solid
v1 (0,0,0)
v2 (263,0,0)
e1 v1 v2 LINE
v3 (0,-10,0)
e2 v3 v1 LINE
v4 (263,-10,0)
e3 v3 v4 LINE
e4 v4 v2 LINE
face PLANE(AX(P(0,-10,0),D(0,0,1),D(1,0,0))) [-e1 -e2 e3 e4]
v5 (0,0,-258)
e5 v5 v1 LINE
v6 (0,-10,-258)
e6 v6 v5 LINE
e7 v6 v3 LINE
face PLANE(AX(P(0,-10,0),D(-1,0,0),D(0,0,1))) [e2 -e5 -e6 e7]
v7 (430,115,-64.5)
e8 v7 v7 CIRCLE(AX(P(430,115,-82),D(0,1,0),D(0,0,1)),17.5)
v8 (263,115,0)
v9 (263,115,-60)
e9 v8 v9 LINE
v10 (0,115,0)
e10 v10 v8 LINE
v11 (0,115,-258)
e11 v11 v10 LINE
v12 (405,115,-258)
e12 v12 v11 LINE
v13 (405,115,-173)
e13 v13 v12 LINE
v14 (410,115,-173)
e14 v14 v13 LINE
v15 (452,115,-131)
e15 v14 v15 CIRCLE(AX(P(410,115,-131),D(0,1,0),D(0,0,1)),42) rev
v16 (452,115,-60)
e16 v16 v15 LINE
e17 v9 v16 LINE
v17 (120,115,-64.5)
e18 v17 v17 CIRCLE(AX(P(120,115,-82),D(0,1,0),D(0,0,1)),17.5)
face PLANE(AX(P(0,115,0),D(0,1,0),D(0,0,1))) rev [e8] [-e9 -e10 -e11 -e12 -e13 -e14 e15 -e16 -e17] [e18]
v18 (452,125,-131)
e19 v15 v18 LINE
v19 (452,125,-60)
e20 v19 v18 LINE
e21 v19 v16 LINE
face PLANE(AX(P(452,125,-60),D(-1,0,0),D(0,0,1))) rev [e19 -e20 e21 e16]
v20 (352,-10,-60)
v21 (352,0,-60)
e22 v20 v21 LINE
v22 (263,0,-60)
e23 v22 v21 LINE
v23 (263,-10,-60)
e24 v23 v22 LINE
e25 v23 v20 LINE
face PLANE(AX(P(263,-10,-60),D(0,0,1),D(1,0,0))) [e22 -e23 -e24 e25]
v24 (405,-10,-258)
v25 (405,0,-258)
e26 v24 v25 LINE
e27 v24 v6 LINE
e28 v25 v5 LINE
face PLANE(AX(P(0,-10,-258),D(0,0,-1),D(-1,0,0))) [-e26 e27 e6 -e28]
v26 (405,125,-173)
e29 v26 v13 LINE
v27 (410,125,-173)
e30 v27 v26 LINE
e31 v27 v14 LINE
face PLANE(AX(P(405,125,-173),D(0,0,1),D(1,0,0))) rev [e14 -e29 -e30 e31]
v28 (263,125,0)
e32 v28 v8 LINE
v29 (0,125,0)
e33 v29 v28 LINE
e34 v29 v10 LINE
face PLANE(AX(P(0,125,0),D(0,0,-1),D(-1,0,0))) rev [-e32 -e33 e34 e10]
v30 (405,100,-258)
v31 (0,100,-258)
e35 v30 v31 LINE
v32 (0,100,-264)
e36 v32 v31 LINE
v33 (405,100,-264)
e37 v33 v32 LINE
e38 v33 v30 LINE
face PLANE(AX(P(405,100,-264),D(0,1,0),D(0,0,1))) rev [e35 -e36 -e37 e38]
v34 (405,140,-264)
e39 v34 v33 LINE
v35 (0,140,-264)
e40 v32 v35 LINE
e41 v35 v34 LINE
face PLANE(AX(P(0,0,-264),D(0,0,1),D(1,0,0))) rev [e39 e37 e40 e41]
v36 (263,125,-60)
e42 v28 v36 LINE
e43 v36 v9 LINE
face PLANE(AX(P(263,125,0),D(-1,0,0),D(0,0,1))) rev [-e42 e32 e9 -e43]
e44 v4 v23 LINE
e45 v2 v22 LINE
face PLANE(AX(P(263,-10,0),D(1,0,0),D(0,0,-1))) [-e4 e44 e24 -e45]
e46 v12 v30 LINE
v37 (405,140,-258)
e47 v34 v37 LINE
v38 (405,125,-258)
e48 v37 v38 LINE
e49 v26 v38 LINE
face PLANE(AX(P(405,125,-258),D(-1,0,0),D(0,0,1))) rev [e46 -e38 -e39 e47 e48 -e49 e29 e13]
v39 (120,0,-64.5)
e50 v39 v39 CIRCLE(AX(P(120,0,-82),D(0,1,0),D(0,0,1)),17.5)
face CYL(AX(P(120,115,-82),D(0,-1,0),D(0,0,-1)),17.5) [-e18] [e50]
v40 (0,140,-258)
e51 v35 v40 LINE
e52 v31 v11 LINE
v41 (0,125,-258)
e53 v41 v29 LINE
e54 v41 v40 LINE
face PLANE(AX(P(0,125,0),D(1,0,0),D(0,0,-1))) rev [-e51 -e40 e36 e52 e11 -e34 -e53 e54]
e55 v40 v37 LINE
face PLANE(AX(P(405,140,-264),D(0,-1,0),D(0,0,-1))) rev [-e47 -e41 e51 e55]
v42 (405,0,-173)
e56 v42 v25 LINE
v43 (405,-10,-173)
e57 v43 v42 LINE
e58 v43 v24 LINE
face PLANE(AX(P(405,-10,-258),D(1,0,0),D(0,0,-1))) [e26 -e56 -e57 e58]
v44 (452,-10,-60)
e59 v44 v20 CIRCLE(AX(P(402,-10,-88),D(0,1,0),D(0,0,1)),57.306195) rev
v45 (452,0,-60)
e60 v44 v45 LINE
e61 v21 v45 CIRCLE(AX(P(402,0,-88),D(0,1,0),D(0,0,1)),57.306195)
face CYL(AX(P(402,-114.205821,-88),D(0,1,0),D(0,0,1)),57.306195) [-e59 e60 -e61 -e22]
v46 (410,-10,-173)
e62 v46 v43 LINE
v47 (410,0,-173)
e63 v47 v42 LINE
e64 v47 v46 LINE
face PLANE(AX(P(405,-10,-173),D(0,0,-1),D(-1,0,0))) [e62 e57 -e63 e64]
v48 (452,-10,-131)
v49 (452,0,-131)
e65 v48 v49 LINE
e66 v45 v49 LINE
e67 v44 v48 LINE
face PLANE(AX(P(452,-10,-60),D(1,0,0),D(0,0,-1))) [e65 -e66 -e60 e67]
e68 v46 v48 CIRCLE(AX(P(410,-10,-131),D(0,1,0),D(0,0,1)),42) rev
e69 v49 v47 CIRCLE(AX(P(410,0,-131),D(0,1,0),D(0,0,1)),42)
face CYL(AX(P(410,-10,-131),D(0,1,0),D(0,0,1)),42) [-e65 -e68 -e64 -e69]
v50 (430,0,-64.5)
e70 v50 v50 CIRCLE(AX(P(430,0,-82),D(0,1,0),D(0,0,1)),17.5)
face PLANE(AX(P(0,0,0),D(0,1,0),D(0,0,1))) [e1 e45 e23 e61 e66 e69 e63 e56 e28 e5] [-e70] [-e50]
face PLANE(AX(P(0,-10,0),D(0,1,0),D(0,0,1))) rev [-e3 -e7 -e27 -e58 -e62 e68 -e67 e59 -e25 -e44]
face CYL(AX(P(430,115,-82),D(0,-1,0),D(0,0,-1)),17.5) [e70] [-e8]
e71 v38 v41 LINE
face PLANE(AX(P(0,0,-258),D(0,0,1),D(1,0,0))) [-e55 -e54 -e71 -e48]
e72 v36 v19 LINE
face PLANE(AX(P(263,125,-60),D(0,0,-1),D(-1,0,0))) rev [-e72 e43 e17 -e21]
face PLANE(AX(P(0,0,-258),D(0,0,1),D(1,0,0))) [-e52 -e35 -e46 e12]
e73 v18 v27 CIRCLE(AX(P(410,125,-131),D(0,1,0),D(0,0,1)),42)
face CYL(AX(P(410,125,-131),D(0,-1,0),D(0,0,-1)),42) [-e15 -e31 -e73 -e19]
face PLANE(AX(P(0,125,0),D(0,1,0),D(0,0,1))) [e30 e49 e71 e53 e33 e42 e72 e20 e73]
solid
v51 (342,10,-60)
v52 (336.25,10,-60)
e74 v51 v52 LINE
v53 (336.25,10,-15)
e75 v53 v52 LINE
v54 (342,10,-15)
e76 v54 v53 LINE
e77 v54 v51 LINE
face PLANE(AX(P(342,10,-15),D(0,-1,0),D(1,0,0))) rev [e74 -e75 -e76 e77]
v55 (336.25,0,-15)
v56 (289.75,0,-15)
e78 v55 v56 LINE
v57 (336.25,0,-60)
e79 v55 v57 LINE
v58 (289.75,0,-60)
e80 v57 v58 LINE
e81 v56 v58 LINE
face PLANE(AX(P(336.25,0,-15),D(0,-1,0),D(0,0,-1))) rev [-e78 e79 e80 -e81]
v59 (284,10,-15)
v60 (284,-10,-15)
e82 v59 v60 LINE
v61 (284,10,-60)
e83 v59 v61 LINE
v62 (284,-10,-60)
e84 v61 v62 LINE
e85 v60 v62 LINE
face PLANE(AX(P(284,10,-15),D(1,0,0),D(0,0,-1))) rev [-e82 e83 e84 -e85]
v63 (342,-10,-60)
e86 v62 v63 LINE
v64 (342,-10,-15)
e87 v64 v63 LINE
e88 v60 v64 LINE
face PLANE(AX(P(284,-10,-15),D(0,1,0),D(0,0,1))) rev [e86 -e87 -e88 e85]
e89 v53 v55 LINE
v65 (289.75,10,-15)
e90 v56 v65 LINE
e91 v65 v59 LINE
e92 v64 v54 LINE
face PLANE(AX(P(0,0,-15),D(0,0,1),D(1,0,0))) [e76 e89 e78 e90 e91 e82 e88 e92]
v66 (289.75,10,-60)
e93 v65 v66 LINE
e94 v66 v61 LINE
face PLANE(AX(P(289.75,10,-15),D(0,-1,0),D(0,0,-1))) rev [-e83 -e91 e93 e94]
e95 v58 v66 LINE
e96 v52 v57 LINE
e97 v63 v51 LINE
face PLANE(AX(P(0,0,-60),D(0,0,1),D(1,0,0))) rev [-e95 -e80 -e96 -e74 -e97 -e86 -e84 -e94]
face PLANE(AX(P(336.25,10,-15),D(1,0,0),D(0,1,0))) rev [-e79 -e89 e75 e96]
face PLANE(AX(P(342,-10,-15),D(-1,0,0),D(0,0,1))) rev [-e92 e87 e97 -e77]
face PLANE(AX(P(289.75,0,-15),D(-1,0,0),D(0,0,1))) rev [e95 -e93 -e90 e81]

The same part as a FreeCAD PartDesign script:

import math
import FreeCAD as App
import Part
import Sketcher

V = App.Vector
Q = App.Units.Quantity


def edges_at(feature, points):
    """Names of the edges that pass closest to the given points."""
    edges = feature.Shape.Edges
    near = lambda p: min(range(len(edges)), key=lambda i: edges[i].distToShape(Part.Vertex(*p))[0])
    return sorted({f"Edge{near(p) + 1}" for p in points})

doc = App.newDocument("Part")
body = doc.addObject("PartDesign::Body", "Body")

sketch1 = body.newObject("Sketcher::SketchObject", "Sketch")
sketch1.AttachmentSupport = (doc.getObject("XZ_Plane"), [""])
sketch1.MapMode = "FlatFace"
sketch1.addGeometry([
    Part.LineSegment(V(0, 0, 0), V(263, 0, 0)),
    Part.LineSegment(V(263, 0, 0), V(263, -60, 0)),
    Part.LineSegment(V(263, -60, 0), V(452, -60, 0)),
    Part.LineSegment(V(452, -60, 0), V(452, -173, 0)),
    Part.LineSegment(V(452, -173, 0), V(405, -173, 0)),
    Part.LineSegment(V(405, -173, 0), V(405, -258, 0)),
    Part.LineSegment(V(405, -258, 0), V(0, -258, 0)),
    Part.LineSegment(V(0, -258, 0), V(0, 0, 0)),
], False)
sketch1.addConstraint([
    Sketcher.Constraint("Coincident", 0, 2, 1, 1),
    Sketcher.Constraint("Coincident", 1, 2, 2, 1),
    Sketcher.Constraint("Coincident", 2, 2, 3, 1),
    Sketcher.Constraint("Coincident", 3, 2, 4, 1),
    Sketcher.Constraint("Coincident", 4, 2, 5, 1),
    Sketcher.Constraint("Coincident", 5, 2, 6, 1),
    Sketcher.Constraint("Coincident", 6, 2, 7, 1),
    Sketcher.Constraint("Coincident", 7, 2, 0, 1),
    Sketcher.Constraint("Horizontal", 0),
    Sketcher.Constraint("Vertical", 1),
    Sketcher.Constraint("Horizontal", 2),
    Sketcher.Constraint("Vertical", 3),
    Sketcher.Constraint("Horizontal", 4),
    Sketcher.Constraint("Vertical", 5),
    Sketcher.Constraint("Horizontal", 6),
    Sketcher.Constraint("Vertical", 7),
    Sketcher.Constraint("Coincident", 7, 2, -1, 1),
    Sketcher.Constraint("DistanceX", 0, 1, 0, 2, Q("263 mm")),
    Sketcher.Constraint("DistanceX", 2, 1, 2, 2, Q("189 mm")),
    Sketcher.Constraint("DistanceX", 4, 2, 4, 1, Q("47 mm")),
    Sketcher.Constraint("DistanceY", 1, 2, 1, 1, Q("60 mm")),
    Sketcher.Constraint("DistanceY", 3, 2, 3, 1, Q("113 mm")),
    Sketcher.Constraint("DistanceY", 5, 2, 5, 1, Q("85 mm")),
])
pad1 = body.newObject("PartDesign::Pad", "Pad")
pad1.Profile = sketch1
pad1.Length = 10

sketch2 = body.newObject("Sketcher::SketchObject", "Sketch001")
sketch2.AttachmentSupport = (doc.getObject("XZ_Plane"), [""])
sketch2.MapMode = "FlatFace"
sketch2.addGeometry([
    Part.Circle(V(120, -82, 0), V(0, 0, 1), 18),
    Part.Circle(V(430, -82, 0), V(0, 0, 1), 18),
], False)
sketch2.addConstraint([
    Sketcher.Constraint("Equal", 0, 1),
    Sketcher.Constraint("Horizontal", 0, 3, 1, 3),
    Sketcher.Constraint("Diameter", 0, Q("35 mm")),
    Sketcher.Constraint("DistanceX", -1, 1, 0, 3, Q("120 mm")),
    Sketcher.Constraint("DistanceY", 0, 3, -1, 1, Q("82 mm")),
    Sketcher.Constraint("DistanceX", -1, 1, 1, 3, Q("430 mm")),
])
pad2 = body.newObject("PartDesign::Pad", "Pad001")
pad2.Profile = sketch2
pad2.Length = 115
pad2.Reversed = True

sketch3 = body.newObject("Sketcher::SketchObject", "Sketch002")
sketch3.AttachmentSupport = (doc.getObject("XZ_Plane"), [""])
sketch3.MapMode = "FlatFace"
sketch3.AttachmentOffset = App.Placement(V(0, 0, -115), App.Rotation())
sketch3.addGeometry([
    Part.LineSegment(V(0, 0, 0), V(263, 0, 0)),
    Part.LineSegment(V(263, 0, 0), V(263, -60, 0)),
    Part.LineSegment(V(263, -60, 0), V(452, -60, 0)),
    Part.LineSegment(V(452, -60, 0), V(452, -173, 0)),
    Part.LineSegment(V(452, -173, 0), V(405, -173, 0)),
    Part.LineSegment(V(405, -173, 0), V(405, -258, 0)),
    Part.LineSegment(V(405, -258, 0), V(0, -258, 0)),
    Part.LineSegment(V(0, -258, 0), V(0, 0, 0)),
], False)
sketch3.addConstraint([
    Sketcher.Constraint("Coincident", 0, 2, 1, 1),
    Sketcher.Constraint("Coincident", 1, 2, 2, 1),
    Sketcher.Constraint("Coincident", 2, 2, 3, 1),
    Sketcher.Constraint("Coincident", 3, 2, 4, 1),
    Sketcher.Constraint("Coincident", 4, 2, 5, 1),
    Sketcher.Constraint("Coincident", 5, 2, 6, 1),
    Sketcher.Constraint("Coincident", 6, 2, 7, 1),
    Sketcher.Constraint("Coincident", 7, 2, 0, 1),
    Sketcher.Constraint("Horizontal", 0),
    Sketcher.Constraint("Vertical", 1),
    Sketcher.Constraint("Horizontal", 2),
    Sketcher.Constraint("Vertical", 3),
    Sketcher.Constraint("Horizontal", 4),
    Sketcher.Constraint("Vertical", 5),
    Sketcher.Constraint("Horizontal", 6),
    Sketcher.Constraint("Vertical", 7),
    Sketcher.Constraint("Coincident", 7, 2, -1, 1),
    Sketcher.Constraint("DistanceX", 0, 1, 0, 2, Q("263 mm")),
    Sketcher.Constraint("DistanceX", 2, 1, 2, 2, Q("189 mm")),
    Sketcher.Constraint("DistanceX", 4, 2, 4, 1, Q("47 mm")),
    Sketcher.Constraint("DistanceY", 1, 2, 1, 1, Q("60 mm")),
    Sketcher.Constraint("DistanceY", 3, 2, 3, 1, Q("113 mm")),
    Sketcher.Constraint("DistanceY", 5, 2, 5, 1, Q("85 mm")),
])
pad3 = body.newObject("PartDesign::Pad", "Pad002")
pad3.Profile = sketch3
pad3.Length = 10
pad3.Reversed = True
doc.recompute()

fillet = body.newObject("PartDesign::Fillet", "Fillet")
fillet.Base = (pad3, edges_at(pad3, [(452, -5, -173), (452, 120, -173)]))
fillet.Radius = 42

sketch4 = body.newObject("Sketcher::SketchObject", "Sketch003")
sketch4.AttachmentSupport = (doc.getObject("XZ_Plane"), [""])
sketch4.MapMode = "FlatFace"
sketch4.addGeometry([
    Part.LineSegment(V(452, -60, 0), V(352, -60, 0)),
    Part.ArcOfCircle(Part.Circle(V(402, -88, 0), V(0, 0, 1), 57), math.radians(29), math.radians(151)),
], False)
sketch4.addConstraint([
    Sketcher.Constraint("Coincident", 0, 1, 1, 1),
    Sketcher.Constraint("Coincident", 1, 2, 0, 2),
    Sketcher.Constraint("Horizontal", 0),
    Sketcher.Constraint("DistanceX", 0, 2, 0, 1, Q("100 mm")),
    Sketcher.Constraint("DistanceX", -1, 1, 1, 3, Q("402 mm")),
    Sketcher.Constraint("DistanceY", 1, 3, -1, 1, Q("88 mm")),
    Sketcher.Constraint("DistanceY", 0, 1, -1, 1, Q("60 mm")),
])
pad4 = body.newObject("PartDesign::Pad", "Pad003")
pad4.Profile = sketch4
pad4.Length = 10

sketch5 = body.newObject("Sketcher::SketchObject", "Sketch004")
sketch5.AttachmentSupport = (doc.getObject("XY_Plane"), [""])
sketch5.MapMode = "FlatFace"
sketch5.AttachmentOffset = App.Placement(V(0, 0, -258), App.Rotation())
sketch5.addGeometry([
    Part.LineSegment(V(405, 140, 0), V(405, 100, 0)),
    Part.LineSegment(V(405, 100, 0), V(0, 100, 0)),
    Part.LineSegment(V(0, 100, 0), V(0, 140, 0)),
    Part.LineSegment(V(0, 140, 0), V(405, 140, 0)),
], False)
sketch5.addConstraint([
    Sketcher.Constraint("Coincident", 0, 2, 1, 1),
    Sketcher.Constraint("Coincident", 1, 2, 2, 1),
    Sketcher.Constraint("Coincident", 2, 2, 3, 1),
    Sketcher.Constraint("Coincident", 3, 2, 0, 1),
    Sketcher.Constraint("Vertical", 0),
    Sketcher.Constraint("Horizontal", 1),
    Sketcher.Constraint("Vertical", 2),
    Sketcher.Constraint("Horizontal", 3),
    Sketcher.Constraint("PointOnObject", 1, 2, -2),
    Sketcher.Constraint("DistanceX", 1, 2, 1, 1, Q("405 mm")),
    Sketcher.Constraint("DistanceY", 0, 2, 0, 1, Q("40 mm")),
    Sketcher.Constraint("DistanceY", -1, 1, 0, 2, Q("100 mm")),
])
pad5 = body.newObject("PartDesign::Pad", "Pad004")
pad5.Profile = sketch5
pad5.Length = 6
pad5.Reversed = True
body2 = doc.addObject("PartDesign::Body", "Body001")

sketch6 = body2.newObject("Sketcher::SketchObject", "Sketch005")
sketch6.AttachmentSupport = (doc.getObject("XY_Plane001"), [""])
sketch6.MapMode = "FlatFace"
sketch6.AttachmentOffset = App.Placement(V(0, 0, -60), App.Rotation())
sketch6.addGeometry([
    Part.LineSegment(V(284, 10, 0), V(284, -10, 0)),
    Part.LineSegment(V(284, -10, 0), V(342, -10, 0)),
    Part.LineSegment(V(342, -10, 0), V(342, 10, 0)),
    Part.LineSegment(V(342, 10, 0), V(336, 10, 0)),
    Part.LineSegment(V(336, 10, 0), V(336, 0, 0)),
    Part.LineSegment(V(336, 0, 0), V(290, 0, 0)),
    Part.LineSegment(V(290, 0, 0), V(290, 10, 0)),
    Part.LineSegment(V(290, 10, 0), V(284, 10, 0)),
], False)
sketch6.addConstraint([
    Sketcher.Constraint("Coincident", 0, 2, 1, 1),
    Sketcher.Constraint("Coincident", 1, 2, 2, 1),
    Sketcher.Constraint("Coincident", 2, 2, 3, 1),
    Sketcher.Constraint("Coincident", 3, 2, 4, 1),
    Sketcher.Constraint("Coincident", 4, 2, 5, 1),
    Sketcher.Constraint("Coincident", 5, 2, 6, 1),
    Sketcher.Constraint("Coincident", 6, 2, 7, 1),
    Sketcher.Constraint("Coincident", 7, 2, 0, 1),
    Sketcher.Constraint("Vertical", 0),
    Sketcher.Constraint("Horizontal", 1),
    Sketcher.Constraint("Vertical", 2),
    Sketcher.Constraint("Horizontal", 3),
    Sketcher.Constraint("Vertical", 4),
    Sketcher.Constraint("Horizontal", 5),
    Sketcher.Constraint("Vertical", 6),
    Sketcher.Constraint("Horizontal", 7),
    Sketcher.Constraint("PointOnObject", 4, 2, -1),
    Sketcher.Constraint("Horizontal", 3, 2, 6, 2),
    Sketcher.Constraint("Equal", 3, 7),
    Sketcher.Constraint("DistanceX", 1, 1, 1, 2, Q("58 mm")),
    Sketcher.Constraint("DistanceY", 0, 2, 0, 1, Q("20 mm")),
    Sketcher.Constraint("DistanceY", 4, 2, 4, 1, Q("10 mm")),
    Sketcher.Constraint("DistanceX", 5, 2, 5, 1, Q("46.5 mm")),
    Sketcher.Constraint("DistanceX", -1, 1, 0, 2, Q("284 mm")),
])
pad6 = body2.newObject("PartDesign::Pad", "Pad005")
pad6.Profile = sketch6
pad6.Length = 45

doc.recompute()
